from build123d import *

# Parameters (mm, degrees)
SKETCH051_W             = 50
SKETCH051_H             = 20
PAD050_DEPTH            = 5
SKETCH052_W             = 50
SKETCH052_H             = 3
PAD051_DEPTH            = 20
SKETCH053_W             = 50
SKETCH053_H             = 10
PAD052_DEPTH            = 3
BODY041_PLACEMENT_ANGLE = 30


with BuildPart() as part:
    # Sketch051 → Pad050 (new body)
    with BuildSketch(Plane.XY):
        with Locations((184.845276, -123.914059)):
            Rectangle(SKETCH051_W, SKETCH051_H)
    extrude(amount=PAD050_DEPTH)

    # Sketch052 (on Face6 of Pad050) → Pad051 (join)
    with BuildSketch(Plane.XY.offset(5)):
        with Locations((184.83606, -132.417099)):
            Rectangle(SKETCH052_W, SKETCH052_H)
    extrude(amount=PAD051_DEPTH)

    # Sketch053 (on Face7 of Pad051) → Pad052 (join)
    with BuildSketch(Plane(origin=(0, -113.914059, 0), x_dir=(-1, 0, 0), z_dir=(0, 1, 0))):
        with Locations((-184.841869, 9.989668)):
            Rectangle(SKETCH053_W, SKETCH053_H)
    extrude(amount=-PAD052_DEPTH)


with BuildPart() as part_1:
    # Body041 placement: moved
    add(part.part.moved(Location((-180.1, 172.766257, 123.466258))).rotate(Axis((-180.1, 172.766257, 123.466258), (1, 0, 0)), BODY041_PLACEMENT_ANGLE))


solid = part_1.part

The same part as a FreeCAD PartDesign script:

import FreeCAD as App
import Part
import Sketcher

V = App.Vector
Q = App.Units.Quantity

doc = App.newDocument("Part")
body = doc.addObject("PartDesign::Body", "Body")

# Sketch on XY plane
sketch1 = body.newObject("Sketcher::SketchObject", "Sketch")
sketch1.AttachmentSupport = (doc.getObject("XY_Plane"), [""])
sketch1.MapMode = "FlatFace"
sketch1.addGeometry([
    Part.LineSegment(V(160, -114, 0), V(160, -134, 0)),
    Part.LineSegment(V(160, -134, 0), V(210, -134, 0)),
    Part.LineSegment(V(210, -134, 0), V(210, -114, 0)),
    Part.LineSegment(V(210, -114, 0), V(160, -114, 0)),
], False)
sketch1.addConstraint([
    Sketcher.Constraint("Coincident", 0, 2, 1, 1),
    Sketcher.Constraint("Coincident", 1, 2, 2, 1),
    Sketcher.Constraint("Coincident", 2, 2, 3, 1),
    Sketcher.Constraint("Coincident", 3, 2, 0, 1),
    Sketcher.Constraint("Vertical", 0),
    Sketcher.Constraint("Horizontal", 1),
    Sketcher.Constraint("Vertical", 2),
    Sketcher.Constraint("Horizontal", 3),
    Sketcher.Constraint("DistanceX", 1, 1, 1, 2, Q("50 mm")),
    Sketcher.Constraint("DistanceY", 0, 2, 0, 1, Q("20 mm")),
    Sketcher.Constraint("DistanceY", 0, 2, -1, 1, Q("133.914059 mm")),
    Sketcher.Constraint("DistanceX", -1, 1, 0, 2, Q("159.845276 mm")),
])
pad1 = body.newObject("PartDesign::Pad", "Pad")
pad1.Profile = sketch1
pad1.Length = 5

# Sketch on XY plane
sketch2 = body.newObject("Sketcher::SketchObject", "Sketch001")
sketch2.AttachmentSupport = (doc.getObject("XY_Plane"), [""])
sketch2.MapMode = "FlatFace"
sketch2.AttachmentOffset = App.Placement(V(0, 0, 5), App.Rotation())
sketch2.addGeometry([
    Part.LineSegment(V(159.8, -130.9, 0), V(159.8, -133.9, 0)),
    Part.LineSegment(V(159.8, -133.9, 0), V(209.8, -133.9, 0)),
    Part.LineSegment(V(209.8, -133.9, 0), V(209.8, -130.9, 0)),
    Part.LineSegment(V(209.8, -130.9, 0), V(159.8, -130.9, 0)),
], False)
sketch2.addConstraint([
    Sketcher.Constraint("Coincident", 0, 2, 1, 1),
    Sketcher.Constraint("Coincident", 1, 2, 2, 1),
    Sketcher.Constraint("Coincident", 2, 2, 3, 1),
    Sketcher.Constraint("Coincident", 3, 2, 0, 1),
    Sketcher.Constraint("Vertical", 0),
    Sketcher.Constraint("Horizontal", 1),
    Sketcher.Constraint("Vertical", 2),
    Sketcher.Constraint("Horizontal", 3),
    Sketcher.Constraint("DistanceX", 1, 1, 1, 2, Q("50 mm")),
    Sketcher.Constraint("DistanceY", 0, 2, 0, 1, Q("3 mm")),
    Sketcher.Constraint("DistanceY", 0, 2, -1, 1, Q("133.917099 mm")),
    Sketcher.Constraint("DistanceX", -1, 1, 0, 2, Q("159.83606 mm")),
])
pad2 = body.newObject("PartDesign::Pad", "Pad001")
pad2.Profile = sketch2
pad2.Length = 20

# Sketch on XZ plane
sketch3 = body.newObject("Sketcher::SketchObject", "Sketch002")
sketch3.AttachmentSupport = (doc.getObject("XZ_Plane"), [""])
sketch3.MapMode = "FlatFace"
sketch3.AttachmentOffset = App.Placement(V(0, 0, 113.914059), App.Rotation())
sketch3.addGeometry([
    Part.LineSegment(V(210, 15, 0), V(210, 5, 0)),
    Part.LineSegment(V(210, 5, 0), V(160, 5, 0)),
    Part.LineSegment(V(160, 5, 0), V(160, 15, 0)),
    Part.LineSegment(V(160, 15, 0), V(210, 15, 0)),
], False)
sketch3.addConstraint([
    Sketcher.Constraint("Coincident", 0, 2, 1, 1),
    Sketcher.Constraint("Coincident", 1, 2, 2, 1),
    Sketcher.Constraint("Coincident", 2, 2, 3, 1),
    Sketcher.Constraint("Coincident", 3, 2, 0, 1),
    Sketcher.Constraint("Vertical", 0),
    Sketcher.Constraint("Horizontal", 1),
    Sketcher.Constraint("Vertical", 2),
    Sketcher.Constraint("Horizontal", 3),
    Sketcher.Constraint("DistanceX", 1, 2, 1, 1, Q("50 mm")),
    Sketcher.Constraint("DistanceY", 0, 2, 0, 1, Q("10 mm")),
    Sketcher.Constraint("DistanceX", -1, 1, 0, 2, Q("209.841869 mm")),
    Sketcher.Constraint("DistanceY", -1, 1, 0, 2, Q("4.989668 mm")),
])
pad3 = body.newObject("PartDesign::Pad", "Pad002")
pad3.Profile = sketch3
pad3.Length = 3
body2 = doc.addObject("PartDesign::Body", "Body001")
doc.recompute()

body.Placement = App.Placement(V(-180.1, 172.766257, 123.466258), App.Rotation(V(1, 0, 0), 30))
boolean = body2.newObject("PartDesign::Boolean", "Boolean")
boolean.Type = "Fuse"
boolean.addObjects([body])

doc.recompute()
